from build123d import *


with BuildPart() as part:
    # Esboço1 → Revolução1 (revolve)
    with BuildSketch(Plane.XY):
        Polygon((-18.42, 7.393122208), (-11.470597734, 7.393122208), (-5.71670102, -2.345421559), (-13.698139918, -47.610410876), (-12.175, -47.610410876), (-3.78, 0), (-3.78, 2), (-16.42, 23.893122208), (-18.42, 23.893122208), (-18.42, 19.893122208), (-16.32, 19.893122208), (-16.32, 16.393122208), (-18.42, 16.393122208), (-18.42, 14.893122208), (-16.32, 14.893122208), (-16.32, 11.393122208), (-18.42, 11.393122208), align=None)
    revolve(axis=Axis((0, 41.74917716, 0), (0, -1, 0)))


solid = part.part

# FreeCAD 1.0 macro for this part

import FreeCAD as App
import Part
import Sketcher

V = App.Vector
Q = App.Units.Quantity


def add_polygon(sketch, points):
    """Adds a closed chain of lines whose ends are joined by coincident constraints."""
    first, n = sketch.GeometryCount, len(points)
    for a, b in zip(points, points[1:] + points[:1]):
        sketch.addGeometry(Part.LineSegment(App.Vector(*a, 0), App.Vector(*b, 0)), False)
    for i in range(n):
        sketch.addConstraint(Sketcher.Constraint("Coincident", first + i, 2, first + (i + 1) % n, 1))

doc = App.newDocument("Part")
body = doc.addObject("PartDesign::Body", "Body")

sketch1 = body.newObject("Sketcher::SketchObject", "Sketch")
sketch1.AttachmentSupport = (doc.getObject("XY_Plane"), [""])
sketch1.MapMode = "FlatFace"
add_polygon(sketch1, [(-18.4, 7.4), (-11.5, 7.4), (-5.7, -2.3), (-13.7, -47.6), (-12.2, -47.6), (-3.8, 0), (-3.8, 2), (-16.4, 23.9), (-18.4, 23.9), (-18.4, 19.9), (-16.3, 19.9), (-16.3, 16.4), (-18.4, 16.4), (-18.4, 14.9), (-16.3, 14.9), (-16.3, 11.4), (-18.4, 11.4)])
sketch1.addConstraint(Sketcher.Constraint("Horizontal", 0))
sketch1.addConstraint(Sketcher.Constraint("Horizontal", 3))
sketch1.addConstraint(Sketcher.Constraint("Vertical", 5))
sketch1.addConstraint(Sketcher.Constraint("Horizontal", 7))
sketch1.addConstraint(Sketcher.Constraint("Vertical", 8))
sketch1.addConstraint(Sketcher.Constraint("Horizontal", 9))
sketch1.addConstraint(Sketcher.Constraint("Vertical", 10))
sketch1.addConstraint(Sketcher.Constraint("Horizontal", 11))
sketch1.addConstraint(Sketcher.Constraint("Vertical", 12))
sketch1.addConstraint(Sketcher.Constraint("Horizontal", 13))
sketch1.addConstraint(Sketcher.Constraint("Vertical", 14))
sketch1.addConstraint(Sketcher.Constraint("Horizontal", 15))
sketch1.addConstraint(Sketcher.Constraint("Vertical", 16))
sketch1.addConstraint(Sketcher.Constraint("PointOnObject", 4, 2, -1))
sketch1.addConstraint(Sketcher.Constraint("Parallel", 2, 4))
sketch1.addConstraint(Sketcher.Constraint("Vertical", 8, 2, 11, 2))
sketch1.addConstraint(Sketcher.Constraint("Vertical", 10, 2, 13, 2))
sketch1.addConstraint(Sketcher.Constraint("Vertical", 12, 2, 15, 2))
sketch1.addConstraint(Sketcher.Constraint("Equal", 7, 5))
sketch1.addConstraint(Sketcher.Constraint("Equal", 10, 14))
sketch1.addConstraint(Sketcher.Constraint("Equal", 8, 16))
sketch1.addConstraint(Sketcher.Constraint("DistanceX", 7, 2, 7, 1, 2.0))
sketch1.addConstraint(Sketcher.Constraint("DistanceY", 8, 2, 8, 1, 4.0))
sketch1.addConstraint(Sketcher.Constraint("Angle", 2, Q("-100 deg")))
sketch1.addConstraint(Sketcher.Constraint("Angle", 6, Q("120 deg")))
sketch1.addConstraint(Sketcher.Constraint("DistanceX", 9, 1, 9, 2, 2.1))
sketch1.addConstraint(Sketcher.Constraint("DistanceY", 10, 2, 10, 1, 3.5))
sketch1.addConstraint(Sketcher.Constraint("DistanceY", 12, 2, 12, 1, 1.5))
sketch1.addConstraint(Sketcher.Constraint("Distance", 6, 25.28))
sketch1.addConstraint(Sketcher.Constraint("DistanceX", 4, 2, -1, 1, 3.78))
sketch1.addConstraint(Sketcher.Constraint("DistanceX", 3, 2, -1, 1, 12.175))
sketch1.addConstraint(Sketcher.Constraint("DistanceX", 3, 1, 3, 2, 1.52314))
sketch1.addConstraint(Sketcher.Constraint("DistanceX", 1, 2, -1, 1, 5.716701))
sketch1.addConstraint(Sketcher.Constraint("DistanceX", 0, 1, 0, 2, 6.949402))
revolution = body.newObject("PartDesign::Revolution", "Revolution")
revolution.Profile = sketch1
revolution.ReferenceAxis = (sketch1, ["V_Axis"])
revolution.Angle = 360

doc.recompute()
